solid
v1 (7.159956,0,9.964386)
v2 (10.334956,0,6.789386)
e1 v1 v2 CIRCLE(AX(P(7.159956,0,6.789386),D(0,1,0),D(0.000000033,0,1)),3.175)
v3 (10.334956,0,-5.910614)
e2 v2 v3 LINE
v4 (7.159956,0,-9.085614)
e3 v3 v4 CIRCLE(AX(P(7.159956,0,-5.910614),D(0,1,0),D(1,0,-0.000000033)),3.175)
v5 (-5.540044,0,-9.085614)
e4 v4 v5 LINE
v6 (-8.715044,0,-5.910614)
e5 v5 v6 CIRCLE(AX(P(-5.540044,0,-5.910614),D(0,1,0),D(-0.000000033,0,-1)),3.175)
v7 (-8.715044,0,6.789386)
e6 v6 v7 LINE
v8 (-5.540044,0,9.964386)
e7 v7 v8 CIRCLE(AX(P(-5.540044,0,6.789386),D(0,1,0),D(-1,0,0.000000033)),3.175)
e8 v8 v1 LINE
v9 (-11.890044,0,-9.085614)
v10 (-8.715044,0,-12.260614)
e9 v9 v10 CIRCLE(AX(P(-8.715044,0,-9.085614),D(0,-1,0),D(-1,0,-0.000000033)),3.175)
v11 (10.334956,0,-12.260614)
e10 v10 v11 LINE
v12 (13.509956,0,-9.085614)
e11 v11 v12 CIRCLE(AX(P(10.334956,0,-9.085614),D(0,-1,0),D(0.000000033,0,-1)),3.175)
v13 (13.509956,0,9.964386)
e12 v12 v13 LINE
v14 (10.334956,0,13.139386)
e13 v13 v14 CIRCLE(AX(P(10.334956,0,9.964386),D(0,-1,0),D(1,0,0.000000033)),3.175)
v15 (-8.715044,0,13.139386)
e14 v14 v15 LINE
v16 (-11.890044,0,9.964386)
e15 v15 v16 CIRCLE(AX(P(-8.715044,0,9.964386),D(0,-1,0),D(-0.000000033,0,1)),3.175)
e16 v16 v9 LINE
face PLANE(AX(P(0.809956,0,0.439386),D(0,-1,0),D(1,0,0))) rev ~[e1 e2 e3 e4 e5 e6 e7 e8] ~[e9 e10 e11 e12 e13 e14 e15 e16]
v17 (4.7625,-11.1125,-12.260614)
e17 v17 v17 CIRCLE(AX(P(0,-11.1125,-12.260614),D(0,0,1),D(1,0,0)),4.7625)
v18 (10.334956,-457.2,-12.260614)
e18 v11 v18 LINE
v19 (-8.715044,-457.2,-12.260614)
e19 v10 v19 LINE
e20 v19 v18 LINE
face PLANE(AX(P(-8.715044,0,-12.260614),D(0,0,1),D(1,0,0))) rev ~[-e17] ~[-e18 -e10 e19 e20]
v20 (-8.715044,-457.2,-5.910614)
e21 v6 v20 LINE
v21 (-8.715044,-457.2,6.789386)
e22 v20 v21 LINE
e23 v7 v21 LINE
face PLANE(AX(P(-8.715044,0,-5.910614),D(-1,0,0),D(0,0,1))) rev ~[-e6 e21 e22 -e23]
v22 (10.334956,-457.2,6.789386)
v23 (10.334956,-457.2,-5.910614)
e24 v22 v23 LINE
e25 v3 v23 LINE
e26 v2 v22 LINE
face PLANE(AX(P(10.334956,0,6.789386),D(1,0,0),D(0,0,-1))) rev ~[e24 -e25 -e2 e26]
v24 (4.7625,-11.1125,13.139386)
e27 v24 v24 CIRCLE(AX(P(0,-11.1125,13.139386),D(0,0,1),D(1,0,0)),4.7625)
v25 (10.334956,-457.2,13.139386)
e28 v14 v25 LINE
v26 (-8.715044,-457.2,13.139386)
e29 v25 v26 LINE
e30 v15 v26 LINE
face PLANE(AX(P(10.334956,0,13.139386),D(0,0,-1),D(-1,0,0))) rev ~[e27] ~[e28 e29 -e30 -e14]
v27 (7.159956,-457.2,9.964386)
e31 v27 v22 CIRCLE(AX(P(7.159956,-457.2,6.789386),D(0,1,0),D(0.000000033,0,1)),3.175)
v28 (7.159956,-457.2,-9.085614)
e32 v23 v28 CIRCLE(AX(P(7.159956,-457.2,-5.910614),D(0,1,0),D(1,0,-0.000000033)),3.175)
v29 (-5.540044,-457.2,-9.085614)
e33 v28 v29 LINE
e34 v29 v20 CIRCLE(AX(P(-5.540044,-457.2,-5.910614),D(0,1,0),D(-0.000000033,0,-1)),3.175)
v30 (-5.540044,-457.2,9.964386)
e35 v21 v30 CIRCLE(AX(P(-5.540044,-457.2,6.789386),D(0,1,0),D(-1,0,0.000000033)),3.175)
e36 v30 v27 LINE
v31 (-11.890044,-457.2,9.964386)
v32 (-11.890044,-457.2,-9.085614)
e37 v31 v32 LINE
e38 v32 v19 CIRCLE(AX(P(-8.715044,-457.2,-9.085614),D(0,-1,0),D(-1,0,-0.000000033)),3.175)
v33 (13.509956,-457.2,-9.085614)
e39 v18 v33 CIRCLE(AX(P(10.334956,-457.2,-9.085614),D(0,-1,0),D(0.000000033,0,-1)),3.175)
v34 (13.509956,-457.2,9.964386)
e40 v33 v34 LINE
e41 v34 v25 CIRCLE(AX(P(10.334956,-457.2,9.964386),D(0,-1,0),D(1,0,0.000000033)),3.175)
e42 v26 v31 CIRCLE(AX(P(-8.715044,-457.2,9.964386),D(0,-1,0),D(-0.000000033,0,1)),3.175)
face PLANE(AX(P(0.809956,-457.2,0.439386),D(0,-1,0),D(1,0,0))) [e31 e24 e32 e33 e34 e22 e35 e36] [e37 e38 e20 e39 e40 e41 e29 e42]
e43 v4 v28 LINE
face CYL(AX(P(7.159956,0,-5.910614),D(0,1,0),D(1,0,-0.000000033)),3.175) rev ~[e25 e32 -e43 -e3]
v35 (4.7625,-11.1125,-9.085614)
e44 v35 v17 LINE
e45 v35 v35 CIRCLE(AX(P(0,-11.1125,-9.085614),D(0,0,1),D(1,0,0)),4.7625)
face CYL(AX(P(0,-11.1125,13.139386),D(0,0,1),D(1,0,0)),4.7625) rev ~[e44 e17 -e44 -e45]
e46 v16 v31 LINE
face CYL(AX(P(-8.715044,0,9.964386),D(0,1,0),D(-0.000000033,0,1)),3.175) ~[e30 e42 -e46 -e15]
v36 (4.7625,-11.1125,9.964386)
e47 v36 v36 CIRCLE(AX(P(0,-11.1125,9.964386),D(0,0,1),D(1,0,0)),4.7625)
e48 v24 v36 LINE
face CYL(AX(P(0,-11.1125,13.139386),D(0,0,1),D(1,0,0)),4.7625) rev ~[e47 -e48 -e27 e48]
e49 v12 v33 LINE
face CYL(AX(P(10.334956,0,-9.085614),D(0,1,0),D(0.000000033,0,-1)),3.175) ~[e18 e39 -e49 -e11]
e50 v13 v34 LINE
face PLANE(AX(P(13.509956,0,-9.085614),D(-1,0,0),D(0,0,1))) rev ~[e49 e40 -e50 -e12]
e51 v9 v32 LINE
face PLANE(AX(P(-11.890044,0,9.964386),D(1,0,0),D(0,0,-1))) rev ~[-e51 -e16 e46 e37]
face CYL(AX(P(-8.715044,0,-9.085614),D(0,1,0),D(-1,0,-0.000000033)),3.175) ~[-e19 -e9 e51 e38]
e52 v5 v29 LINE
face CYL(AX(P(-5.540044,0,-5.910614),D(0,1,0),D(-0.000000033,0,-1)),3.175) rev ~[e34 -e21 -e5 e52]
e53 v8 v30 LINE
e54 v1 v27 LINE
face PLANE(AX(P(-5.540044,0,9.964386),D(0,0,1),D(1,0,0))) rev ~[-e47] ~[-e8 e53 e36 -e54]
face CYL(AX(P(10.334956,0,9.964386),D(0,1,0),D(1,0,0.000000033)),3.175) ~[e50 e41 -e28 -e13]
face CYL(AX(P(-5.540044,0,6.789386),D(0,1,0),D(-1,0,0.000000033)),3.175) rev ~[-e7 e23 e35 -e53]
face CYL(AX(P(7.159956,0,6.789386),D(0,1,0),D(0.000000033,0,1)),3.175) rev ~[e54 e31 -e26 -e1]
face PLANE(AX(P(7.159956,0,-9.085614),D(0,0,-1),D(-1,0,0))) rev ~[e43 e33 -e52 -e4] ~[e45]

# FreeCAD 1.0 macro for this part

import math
import FreeCAD as App
import Part
import Sketcher
Q = App.Units.Quantity

doc = App.newDocument("Part")
body = doc.addObject("PartDesign::Body", "Body")

sketch1 = doc.addObject("Sketcher::SketchObject", "Sketch")
body.addObject(sketch1)
sketch1.AttachmentSupport = (doc.XZ_Plane, [""])
sketch1.MapMode = "FlatFace"
sketch1.addGeometry([
    Part.LineSegment(App.Vector(-8.7, -12.3, 0), App.Vector(10.3, -12.3, 0)),
    Part.ArcOfCircle(Part.Circle(App.Vector(10.3, -9.1, 0), App.Vector(0, 0, 1), 3.2), math.radians(-90), math.radians(0)),
    Part.LineSegment(App.Vector(13.5, -9.1, 0), App.Vector(13.5, 10, 0)),
    Part.ArcOfCircle(Part.Circle(App.Vector(10.3, 10, 0), App.Vector(0, 0, 1), 3.2), math.radians(0), math.radians(90)),
    Part.LineSegment(App.Vector(10.3, 13.1, 0), App.Vector(-8.7, 13.1, 0)),
    Part.ArcOfCircle(Part.Circle(App.Vector(-8.7, 10, 0), App.Vector(0, 0, 1), 3.2), math.radians(90), math.radians(180)),
    Part.LineSegment(App.Vector(-11.9, 10, 0), App.Vector(-11.9, -9.1, 0)),
    Part.ArcOfCircle(Part.Circle(App.Vector(-8.7, -9.1, 0), App.Vector(0, 0, 1), 3.2), math.radians(-180), math.radians(-90)),
    Part.LineSegment(App.Vector(10.3, 6.8, 0), App.Vector(10.3, -5.9, 0)),
    Part.ArcOfCircle(Part.Circle(App.Vector(7.2, -5.9, 0), App.Vector(0, 0, 1), 3.2), math.radians(-90), math.radians(0)),
    Part.LineSegment(App.Vector(7.2, -9.1, 0), App.Vector(-5.5, -9.1, 0)),
    Part.ArcOfCircle(Part.Circle(App.Vector(-5.5, -5.9, 0), App.Vector(0, 0, 1), 3.2), math.radians(-180), math.radians(-90)),
    Part.LineSegment(App.Vector(-8.7, -5.9, 0), App.Vector(-8.7, 6.8, 0)),
    Part.ArcOfCircle(Part.Circle(App.Vector(-5.5, 6.8, 0), App.Vector(0, 0, 1), 3.2), math.radians(90), math.radians(180)),
    Part.LineSegment(App.Vector(-5.5, 10, 0), App.Vector(7.2, 10, 0)),
    Part.ArcOfCircle(Part.Circle(App.Vector(7.2, 6.8, 0), App.Vector(0, 0, 1), 3.2), math.radians(0), math.radians(90)),
], False)
sketch1.addConstraint([
    Sketcher.Constraint("Tangent", 0, 2, 1, 1),
    Sketcher.Constraint("Tangent", 1, 2, 2, 1),
    Sketcher.Constraint("Tangent", 2, 2, 3, 1),
    Sketcher.Constraint("Tangent", 3, 2, 4, 1),
    Sketcher.Constraint("Tangent", 4, 2, 5, 1),
    Sketcher.Constraint("Tangent", 5, 2, 6, 1),
    Sketcher.Constraint("Tangent", 6, 2, 7, 1),
    Sketcher.Constraint("Tangent", 7, 2, 0, 1),
    Sketcher.Constraint("Tangent", 8, 2, 9, 2),
    Sketcher.Constraint("Tangent", 9, 1, 10, 1),
    Sketcher.Constraint("Tangent", 10, 2, 11, 2),
    Sketcher.Constraint("Tangent", 11, 1, 12, 1),
    Sketcher.Constraint("Tangent", 12, 2, 13, 2),
    Sketcher.Constraint("Tangent", 13, 1, 14, 1),
    Sketcher.Constraint("Tangent", 14, 2, 15, 2),
    Sketcher.Constraint("Tangent", 15, 1, 8, 1),
    Sketcher.Constraint("Horizontal", 0),
    Sketcher.Constraint("Vertical", 2),
    Sketcher.Constraint("Horizontal", 4),
    Sketcher.Constraint("Vertical", 6),
    Sketcher.Constraint("Vertical", 8),
    Sketcher.Constraint("Horizontal", 10),
    Sketcher.Constraint("Vertical", 12),
    Sketcher.Constraint("Horizontal", 14),
    Sketcher.Constraint("Equal", 1, 3),
    Sketcher.Constraint("Equal", 3, 5),
    Sketcher.Constraint("Equal", 5, 7),
    Sketcher.Constraint("Equal", 7, 9),
    Sketcher.Constraint("Equal", 9, 11),
    Sketcher.Constraint("Equal", 11, 13),
    Sketcher.Constraint("Equal", 13, 15),
    Sketcher.Constraint("Horizontal", 6, 2, 9, 1),
    Sketcher.Constraint("Horizontal", 5, 2, 13, 1),
    Sketcher.Constraint("Vertical", 3, 2, 8, 2),
    Sketcher.Constraint("Vertical", 7, 2, 11, 1),
    Sketcher.Constraint("Equal", 4, 2),
    Sketcher.Constraint("DistanceX", 10, 2, 10, 1, Q("0.5 in")),
    Sketcher.Constraint("Radius", 1, Q("0.125 in")),
    Sketcher.Constraint("DistanceX", -1, 1, 1, 3, Q("10.334956 mm")),
    Sketcher.Constraint("DistanceY", 1, 3, -1, 1, Q("9.085614 mm")),
])
pad1 = doc.addObject("PartDesign::Pad", "Pad")
body.addObject(pad1)
pad1.Profile = sketch1
pad1.Length = Q("18 in")

sketch2 = doc.addObject("Sketcher::SketchObject", "Sketch001")
body.addObject(sketch2)
sketch2.AttachmentSupport = (doc.XY_Plane, [""])
sketch2.MapMode = "FlatFace"
sketch2.AttachmentOffset = App.Placement(App.Vector(0, 0, 13.139386), App.Rotation())
sketch2.addGeometry(Part.Circle(App.Vector(0, -11.1, 0), App.Vector(0, 0, 1), 4.8), False)
sketch2.addConstraint([
    Sketcher.Constraint("PointOnObject", 0, 3, -2),
    Sketcher.Constraint("Diameter", 0, Q("0.375 in")),
    Sketcher.Constraint("DistanceY", 0, 3, -1, 1, Q("0.4375 in")),
])
pocket1 = doc.addObject("PartDesign::Pocket", "Pocket")
body.addObject(pocket1)
pocket1.Profile = sketch2
pocket1.Length = Q("1 in")

doc.recompute()
